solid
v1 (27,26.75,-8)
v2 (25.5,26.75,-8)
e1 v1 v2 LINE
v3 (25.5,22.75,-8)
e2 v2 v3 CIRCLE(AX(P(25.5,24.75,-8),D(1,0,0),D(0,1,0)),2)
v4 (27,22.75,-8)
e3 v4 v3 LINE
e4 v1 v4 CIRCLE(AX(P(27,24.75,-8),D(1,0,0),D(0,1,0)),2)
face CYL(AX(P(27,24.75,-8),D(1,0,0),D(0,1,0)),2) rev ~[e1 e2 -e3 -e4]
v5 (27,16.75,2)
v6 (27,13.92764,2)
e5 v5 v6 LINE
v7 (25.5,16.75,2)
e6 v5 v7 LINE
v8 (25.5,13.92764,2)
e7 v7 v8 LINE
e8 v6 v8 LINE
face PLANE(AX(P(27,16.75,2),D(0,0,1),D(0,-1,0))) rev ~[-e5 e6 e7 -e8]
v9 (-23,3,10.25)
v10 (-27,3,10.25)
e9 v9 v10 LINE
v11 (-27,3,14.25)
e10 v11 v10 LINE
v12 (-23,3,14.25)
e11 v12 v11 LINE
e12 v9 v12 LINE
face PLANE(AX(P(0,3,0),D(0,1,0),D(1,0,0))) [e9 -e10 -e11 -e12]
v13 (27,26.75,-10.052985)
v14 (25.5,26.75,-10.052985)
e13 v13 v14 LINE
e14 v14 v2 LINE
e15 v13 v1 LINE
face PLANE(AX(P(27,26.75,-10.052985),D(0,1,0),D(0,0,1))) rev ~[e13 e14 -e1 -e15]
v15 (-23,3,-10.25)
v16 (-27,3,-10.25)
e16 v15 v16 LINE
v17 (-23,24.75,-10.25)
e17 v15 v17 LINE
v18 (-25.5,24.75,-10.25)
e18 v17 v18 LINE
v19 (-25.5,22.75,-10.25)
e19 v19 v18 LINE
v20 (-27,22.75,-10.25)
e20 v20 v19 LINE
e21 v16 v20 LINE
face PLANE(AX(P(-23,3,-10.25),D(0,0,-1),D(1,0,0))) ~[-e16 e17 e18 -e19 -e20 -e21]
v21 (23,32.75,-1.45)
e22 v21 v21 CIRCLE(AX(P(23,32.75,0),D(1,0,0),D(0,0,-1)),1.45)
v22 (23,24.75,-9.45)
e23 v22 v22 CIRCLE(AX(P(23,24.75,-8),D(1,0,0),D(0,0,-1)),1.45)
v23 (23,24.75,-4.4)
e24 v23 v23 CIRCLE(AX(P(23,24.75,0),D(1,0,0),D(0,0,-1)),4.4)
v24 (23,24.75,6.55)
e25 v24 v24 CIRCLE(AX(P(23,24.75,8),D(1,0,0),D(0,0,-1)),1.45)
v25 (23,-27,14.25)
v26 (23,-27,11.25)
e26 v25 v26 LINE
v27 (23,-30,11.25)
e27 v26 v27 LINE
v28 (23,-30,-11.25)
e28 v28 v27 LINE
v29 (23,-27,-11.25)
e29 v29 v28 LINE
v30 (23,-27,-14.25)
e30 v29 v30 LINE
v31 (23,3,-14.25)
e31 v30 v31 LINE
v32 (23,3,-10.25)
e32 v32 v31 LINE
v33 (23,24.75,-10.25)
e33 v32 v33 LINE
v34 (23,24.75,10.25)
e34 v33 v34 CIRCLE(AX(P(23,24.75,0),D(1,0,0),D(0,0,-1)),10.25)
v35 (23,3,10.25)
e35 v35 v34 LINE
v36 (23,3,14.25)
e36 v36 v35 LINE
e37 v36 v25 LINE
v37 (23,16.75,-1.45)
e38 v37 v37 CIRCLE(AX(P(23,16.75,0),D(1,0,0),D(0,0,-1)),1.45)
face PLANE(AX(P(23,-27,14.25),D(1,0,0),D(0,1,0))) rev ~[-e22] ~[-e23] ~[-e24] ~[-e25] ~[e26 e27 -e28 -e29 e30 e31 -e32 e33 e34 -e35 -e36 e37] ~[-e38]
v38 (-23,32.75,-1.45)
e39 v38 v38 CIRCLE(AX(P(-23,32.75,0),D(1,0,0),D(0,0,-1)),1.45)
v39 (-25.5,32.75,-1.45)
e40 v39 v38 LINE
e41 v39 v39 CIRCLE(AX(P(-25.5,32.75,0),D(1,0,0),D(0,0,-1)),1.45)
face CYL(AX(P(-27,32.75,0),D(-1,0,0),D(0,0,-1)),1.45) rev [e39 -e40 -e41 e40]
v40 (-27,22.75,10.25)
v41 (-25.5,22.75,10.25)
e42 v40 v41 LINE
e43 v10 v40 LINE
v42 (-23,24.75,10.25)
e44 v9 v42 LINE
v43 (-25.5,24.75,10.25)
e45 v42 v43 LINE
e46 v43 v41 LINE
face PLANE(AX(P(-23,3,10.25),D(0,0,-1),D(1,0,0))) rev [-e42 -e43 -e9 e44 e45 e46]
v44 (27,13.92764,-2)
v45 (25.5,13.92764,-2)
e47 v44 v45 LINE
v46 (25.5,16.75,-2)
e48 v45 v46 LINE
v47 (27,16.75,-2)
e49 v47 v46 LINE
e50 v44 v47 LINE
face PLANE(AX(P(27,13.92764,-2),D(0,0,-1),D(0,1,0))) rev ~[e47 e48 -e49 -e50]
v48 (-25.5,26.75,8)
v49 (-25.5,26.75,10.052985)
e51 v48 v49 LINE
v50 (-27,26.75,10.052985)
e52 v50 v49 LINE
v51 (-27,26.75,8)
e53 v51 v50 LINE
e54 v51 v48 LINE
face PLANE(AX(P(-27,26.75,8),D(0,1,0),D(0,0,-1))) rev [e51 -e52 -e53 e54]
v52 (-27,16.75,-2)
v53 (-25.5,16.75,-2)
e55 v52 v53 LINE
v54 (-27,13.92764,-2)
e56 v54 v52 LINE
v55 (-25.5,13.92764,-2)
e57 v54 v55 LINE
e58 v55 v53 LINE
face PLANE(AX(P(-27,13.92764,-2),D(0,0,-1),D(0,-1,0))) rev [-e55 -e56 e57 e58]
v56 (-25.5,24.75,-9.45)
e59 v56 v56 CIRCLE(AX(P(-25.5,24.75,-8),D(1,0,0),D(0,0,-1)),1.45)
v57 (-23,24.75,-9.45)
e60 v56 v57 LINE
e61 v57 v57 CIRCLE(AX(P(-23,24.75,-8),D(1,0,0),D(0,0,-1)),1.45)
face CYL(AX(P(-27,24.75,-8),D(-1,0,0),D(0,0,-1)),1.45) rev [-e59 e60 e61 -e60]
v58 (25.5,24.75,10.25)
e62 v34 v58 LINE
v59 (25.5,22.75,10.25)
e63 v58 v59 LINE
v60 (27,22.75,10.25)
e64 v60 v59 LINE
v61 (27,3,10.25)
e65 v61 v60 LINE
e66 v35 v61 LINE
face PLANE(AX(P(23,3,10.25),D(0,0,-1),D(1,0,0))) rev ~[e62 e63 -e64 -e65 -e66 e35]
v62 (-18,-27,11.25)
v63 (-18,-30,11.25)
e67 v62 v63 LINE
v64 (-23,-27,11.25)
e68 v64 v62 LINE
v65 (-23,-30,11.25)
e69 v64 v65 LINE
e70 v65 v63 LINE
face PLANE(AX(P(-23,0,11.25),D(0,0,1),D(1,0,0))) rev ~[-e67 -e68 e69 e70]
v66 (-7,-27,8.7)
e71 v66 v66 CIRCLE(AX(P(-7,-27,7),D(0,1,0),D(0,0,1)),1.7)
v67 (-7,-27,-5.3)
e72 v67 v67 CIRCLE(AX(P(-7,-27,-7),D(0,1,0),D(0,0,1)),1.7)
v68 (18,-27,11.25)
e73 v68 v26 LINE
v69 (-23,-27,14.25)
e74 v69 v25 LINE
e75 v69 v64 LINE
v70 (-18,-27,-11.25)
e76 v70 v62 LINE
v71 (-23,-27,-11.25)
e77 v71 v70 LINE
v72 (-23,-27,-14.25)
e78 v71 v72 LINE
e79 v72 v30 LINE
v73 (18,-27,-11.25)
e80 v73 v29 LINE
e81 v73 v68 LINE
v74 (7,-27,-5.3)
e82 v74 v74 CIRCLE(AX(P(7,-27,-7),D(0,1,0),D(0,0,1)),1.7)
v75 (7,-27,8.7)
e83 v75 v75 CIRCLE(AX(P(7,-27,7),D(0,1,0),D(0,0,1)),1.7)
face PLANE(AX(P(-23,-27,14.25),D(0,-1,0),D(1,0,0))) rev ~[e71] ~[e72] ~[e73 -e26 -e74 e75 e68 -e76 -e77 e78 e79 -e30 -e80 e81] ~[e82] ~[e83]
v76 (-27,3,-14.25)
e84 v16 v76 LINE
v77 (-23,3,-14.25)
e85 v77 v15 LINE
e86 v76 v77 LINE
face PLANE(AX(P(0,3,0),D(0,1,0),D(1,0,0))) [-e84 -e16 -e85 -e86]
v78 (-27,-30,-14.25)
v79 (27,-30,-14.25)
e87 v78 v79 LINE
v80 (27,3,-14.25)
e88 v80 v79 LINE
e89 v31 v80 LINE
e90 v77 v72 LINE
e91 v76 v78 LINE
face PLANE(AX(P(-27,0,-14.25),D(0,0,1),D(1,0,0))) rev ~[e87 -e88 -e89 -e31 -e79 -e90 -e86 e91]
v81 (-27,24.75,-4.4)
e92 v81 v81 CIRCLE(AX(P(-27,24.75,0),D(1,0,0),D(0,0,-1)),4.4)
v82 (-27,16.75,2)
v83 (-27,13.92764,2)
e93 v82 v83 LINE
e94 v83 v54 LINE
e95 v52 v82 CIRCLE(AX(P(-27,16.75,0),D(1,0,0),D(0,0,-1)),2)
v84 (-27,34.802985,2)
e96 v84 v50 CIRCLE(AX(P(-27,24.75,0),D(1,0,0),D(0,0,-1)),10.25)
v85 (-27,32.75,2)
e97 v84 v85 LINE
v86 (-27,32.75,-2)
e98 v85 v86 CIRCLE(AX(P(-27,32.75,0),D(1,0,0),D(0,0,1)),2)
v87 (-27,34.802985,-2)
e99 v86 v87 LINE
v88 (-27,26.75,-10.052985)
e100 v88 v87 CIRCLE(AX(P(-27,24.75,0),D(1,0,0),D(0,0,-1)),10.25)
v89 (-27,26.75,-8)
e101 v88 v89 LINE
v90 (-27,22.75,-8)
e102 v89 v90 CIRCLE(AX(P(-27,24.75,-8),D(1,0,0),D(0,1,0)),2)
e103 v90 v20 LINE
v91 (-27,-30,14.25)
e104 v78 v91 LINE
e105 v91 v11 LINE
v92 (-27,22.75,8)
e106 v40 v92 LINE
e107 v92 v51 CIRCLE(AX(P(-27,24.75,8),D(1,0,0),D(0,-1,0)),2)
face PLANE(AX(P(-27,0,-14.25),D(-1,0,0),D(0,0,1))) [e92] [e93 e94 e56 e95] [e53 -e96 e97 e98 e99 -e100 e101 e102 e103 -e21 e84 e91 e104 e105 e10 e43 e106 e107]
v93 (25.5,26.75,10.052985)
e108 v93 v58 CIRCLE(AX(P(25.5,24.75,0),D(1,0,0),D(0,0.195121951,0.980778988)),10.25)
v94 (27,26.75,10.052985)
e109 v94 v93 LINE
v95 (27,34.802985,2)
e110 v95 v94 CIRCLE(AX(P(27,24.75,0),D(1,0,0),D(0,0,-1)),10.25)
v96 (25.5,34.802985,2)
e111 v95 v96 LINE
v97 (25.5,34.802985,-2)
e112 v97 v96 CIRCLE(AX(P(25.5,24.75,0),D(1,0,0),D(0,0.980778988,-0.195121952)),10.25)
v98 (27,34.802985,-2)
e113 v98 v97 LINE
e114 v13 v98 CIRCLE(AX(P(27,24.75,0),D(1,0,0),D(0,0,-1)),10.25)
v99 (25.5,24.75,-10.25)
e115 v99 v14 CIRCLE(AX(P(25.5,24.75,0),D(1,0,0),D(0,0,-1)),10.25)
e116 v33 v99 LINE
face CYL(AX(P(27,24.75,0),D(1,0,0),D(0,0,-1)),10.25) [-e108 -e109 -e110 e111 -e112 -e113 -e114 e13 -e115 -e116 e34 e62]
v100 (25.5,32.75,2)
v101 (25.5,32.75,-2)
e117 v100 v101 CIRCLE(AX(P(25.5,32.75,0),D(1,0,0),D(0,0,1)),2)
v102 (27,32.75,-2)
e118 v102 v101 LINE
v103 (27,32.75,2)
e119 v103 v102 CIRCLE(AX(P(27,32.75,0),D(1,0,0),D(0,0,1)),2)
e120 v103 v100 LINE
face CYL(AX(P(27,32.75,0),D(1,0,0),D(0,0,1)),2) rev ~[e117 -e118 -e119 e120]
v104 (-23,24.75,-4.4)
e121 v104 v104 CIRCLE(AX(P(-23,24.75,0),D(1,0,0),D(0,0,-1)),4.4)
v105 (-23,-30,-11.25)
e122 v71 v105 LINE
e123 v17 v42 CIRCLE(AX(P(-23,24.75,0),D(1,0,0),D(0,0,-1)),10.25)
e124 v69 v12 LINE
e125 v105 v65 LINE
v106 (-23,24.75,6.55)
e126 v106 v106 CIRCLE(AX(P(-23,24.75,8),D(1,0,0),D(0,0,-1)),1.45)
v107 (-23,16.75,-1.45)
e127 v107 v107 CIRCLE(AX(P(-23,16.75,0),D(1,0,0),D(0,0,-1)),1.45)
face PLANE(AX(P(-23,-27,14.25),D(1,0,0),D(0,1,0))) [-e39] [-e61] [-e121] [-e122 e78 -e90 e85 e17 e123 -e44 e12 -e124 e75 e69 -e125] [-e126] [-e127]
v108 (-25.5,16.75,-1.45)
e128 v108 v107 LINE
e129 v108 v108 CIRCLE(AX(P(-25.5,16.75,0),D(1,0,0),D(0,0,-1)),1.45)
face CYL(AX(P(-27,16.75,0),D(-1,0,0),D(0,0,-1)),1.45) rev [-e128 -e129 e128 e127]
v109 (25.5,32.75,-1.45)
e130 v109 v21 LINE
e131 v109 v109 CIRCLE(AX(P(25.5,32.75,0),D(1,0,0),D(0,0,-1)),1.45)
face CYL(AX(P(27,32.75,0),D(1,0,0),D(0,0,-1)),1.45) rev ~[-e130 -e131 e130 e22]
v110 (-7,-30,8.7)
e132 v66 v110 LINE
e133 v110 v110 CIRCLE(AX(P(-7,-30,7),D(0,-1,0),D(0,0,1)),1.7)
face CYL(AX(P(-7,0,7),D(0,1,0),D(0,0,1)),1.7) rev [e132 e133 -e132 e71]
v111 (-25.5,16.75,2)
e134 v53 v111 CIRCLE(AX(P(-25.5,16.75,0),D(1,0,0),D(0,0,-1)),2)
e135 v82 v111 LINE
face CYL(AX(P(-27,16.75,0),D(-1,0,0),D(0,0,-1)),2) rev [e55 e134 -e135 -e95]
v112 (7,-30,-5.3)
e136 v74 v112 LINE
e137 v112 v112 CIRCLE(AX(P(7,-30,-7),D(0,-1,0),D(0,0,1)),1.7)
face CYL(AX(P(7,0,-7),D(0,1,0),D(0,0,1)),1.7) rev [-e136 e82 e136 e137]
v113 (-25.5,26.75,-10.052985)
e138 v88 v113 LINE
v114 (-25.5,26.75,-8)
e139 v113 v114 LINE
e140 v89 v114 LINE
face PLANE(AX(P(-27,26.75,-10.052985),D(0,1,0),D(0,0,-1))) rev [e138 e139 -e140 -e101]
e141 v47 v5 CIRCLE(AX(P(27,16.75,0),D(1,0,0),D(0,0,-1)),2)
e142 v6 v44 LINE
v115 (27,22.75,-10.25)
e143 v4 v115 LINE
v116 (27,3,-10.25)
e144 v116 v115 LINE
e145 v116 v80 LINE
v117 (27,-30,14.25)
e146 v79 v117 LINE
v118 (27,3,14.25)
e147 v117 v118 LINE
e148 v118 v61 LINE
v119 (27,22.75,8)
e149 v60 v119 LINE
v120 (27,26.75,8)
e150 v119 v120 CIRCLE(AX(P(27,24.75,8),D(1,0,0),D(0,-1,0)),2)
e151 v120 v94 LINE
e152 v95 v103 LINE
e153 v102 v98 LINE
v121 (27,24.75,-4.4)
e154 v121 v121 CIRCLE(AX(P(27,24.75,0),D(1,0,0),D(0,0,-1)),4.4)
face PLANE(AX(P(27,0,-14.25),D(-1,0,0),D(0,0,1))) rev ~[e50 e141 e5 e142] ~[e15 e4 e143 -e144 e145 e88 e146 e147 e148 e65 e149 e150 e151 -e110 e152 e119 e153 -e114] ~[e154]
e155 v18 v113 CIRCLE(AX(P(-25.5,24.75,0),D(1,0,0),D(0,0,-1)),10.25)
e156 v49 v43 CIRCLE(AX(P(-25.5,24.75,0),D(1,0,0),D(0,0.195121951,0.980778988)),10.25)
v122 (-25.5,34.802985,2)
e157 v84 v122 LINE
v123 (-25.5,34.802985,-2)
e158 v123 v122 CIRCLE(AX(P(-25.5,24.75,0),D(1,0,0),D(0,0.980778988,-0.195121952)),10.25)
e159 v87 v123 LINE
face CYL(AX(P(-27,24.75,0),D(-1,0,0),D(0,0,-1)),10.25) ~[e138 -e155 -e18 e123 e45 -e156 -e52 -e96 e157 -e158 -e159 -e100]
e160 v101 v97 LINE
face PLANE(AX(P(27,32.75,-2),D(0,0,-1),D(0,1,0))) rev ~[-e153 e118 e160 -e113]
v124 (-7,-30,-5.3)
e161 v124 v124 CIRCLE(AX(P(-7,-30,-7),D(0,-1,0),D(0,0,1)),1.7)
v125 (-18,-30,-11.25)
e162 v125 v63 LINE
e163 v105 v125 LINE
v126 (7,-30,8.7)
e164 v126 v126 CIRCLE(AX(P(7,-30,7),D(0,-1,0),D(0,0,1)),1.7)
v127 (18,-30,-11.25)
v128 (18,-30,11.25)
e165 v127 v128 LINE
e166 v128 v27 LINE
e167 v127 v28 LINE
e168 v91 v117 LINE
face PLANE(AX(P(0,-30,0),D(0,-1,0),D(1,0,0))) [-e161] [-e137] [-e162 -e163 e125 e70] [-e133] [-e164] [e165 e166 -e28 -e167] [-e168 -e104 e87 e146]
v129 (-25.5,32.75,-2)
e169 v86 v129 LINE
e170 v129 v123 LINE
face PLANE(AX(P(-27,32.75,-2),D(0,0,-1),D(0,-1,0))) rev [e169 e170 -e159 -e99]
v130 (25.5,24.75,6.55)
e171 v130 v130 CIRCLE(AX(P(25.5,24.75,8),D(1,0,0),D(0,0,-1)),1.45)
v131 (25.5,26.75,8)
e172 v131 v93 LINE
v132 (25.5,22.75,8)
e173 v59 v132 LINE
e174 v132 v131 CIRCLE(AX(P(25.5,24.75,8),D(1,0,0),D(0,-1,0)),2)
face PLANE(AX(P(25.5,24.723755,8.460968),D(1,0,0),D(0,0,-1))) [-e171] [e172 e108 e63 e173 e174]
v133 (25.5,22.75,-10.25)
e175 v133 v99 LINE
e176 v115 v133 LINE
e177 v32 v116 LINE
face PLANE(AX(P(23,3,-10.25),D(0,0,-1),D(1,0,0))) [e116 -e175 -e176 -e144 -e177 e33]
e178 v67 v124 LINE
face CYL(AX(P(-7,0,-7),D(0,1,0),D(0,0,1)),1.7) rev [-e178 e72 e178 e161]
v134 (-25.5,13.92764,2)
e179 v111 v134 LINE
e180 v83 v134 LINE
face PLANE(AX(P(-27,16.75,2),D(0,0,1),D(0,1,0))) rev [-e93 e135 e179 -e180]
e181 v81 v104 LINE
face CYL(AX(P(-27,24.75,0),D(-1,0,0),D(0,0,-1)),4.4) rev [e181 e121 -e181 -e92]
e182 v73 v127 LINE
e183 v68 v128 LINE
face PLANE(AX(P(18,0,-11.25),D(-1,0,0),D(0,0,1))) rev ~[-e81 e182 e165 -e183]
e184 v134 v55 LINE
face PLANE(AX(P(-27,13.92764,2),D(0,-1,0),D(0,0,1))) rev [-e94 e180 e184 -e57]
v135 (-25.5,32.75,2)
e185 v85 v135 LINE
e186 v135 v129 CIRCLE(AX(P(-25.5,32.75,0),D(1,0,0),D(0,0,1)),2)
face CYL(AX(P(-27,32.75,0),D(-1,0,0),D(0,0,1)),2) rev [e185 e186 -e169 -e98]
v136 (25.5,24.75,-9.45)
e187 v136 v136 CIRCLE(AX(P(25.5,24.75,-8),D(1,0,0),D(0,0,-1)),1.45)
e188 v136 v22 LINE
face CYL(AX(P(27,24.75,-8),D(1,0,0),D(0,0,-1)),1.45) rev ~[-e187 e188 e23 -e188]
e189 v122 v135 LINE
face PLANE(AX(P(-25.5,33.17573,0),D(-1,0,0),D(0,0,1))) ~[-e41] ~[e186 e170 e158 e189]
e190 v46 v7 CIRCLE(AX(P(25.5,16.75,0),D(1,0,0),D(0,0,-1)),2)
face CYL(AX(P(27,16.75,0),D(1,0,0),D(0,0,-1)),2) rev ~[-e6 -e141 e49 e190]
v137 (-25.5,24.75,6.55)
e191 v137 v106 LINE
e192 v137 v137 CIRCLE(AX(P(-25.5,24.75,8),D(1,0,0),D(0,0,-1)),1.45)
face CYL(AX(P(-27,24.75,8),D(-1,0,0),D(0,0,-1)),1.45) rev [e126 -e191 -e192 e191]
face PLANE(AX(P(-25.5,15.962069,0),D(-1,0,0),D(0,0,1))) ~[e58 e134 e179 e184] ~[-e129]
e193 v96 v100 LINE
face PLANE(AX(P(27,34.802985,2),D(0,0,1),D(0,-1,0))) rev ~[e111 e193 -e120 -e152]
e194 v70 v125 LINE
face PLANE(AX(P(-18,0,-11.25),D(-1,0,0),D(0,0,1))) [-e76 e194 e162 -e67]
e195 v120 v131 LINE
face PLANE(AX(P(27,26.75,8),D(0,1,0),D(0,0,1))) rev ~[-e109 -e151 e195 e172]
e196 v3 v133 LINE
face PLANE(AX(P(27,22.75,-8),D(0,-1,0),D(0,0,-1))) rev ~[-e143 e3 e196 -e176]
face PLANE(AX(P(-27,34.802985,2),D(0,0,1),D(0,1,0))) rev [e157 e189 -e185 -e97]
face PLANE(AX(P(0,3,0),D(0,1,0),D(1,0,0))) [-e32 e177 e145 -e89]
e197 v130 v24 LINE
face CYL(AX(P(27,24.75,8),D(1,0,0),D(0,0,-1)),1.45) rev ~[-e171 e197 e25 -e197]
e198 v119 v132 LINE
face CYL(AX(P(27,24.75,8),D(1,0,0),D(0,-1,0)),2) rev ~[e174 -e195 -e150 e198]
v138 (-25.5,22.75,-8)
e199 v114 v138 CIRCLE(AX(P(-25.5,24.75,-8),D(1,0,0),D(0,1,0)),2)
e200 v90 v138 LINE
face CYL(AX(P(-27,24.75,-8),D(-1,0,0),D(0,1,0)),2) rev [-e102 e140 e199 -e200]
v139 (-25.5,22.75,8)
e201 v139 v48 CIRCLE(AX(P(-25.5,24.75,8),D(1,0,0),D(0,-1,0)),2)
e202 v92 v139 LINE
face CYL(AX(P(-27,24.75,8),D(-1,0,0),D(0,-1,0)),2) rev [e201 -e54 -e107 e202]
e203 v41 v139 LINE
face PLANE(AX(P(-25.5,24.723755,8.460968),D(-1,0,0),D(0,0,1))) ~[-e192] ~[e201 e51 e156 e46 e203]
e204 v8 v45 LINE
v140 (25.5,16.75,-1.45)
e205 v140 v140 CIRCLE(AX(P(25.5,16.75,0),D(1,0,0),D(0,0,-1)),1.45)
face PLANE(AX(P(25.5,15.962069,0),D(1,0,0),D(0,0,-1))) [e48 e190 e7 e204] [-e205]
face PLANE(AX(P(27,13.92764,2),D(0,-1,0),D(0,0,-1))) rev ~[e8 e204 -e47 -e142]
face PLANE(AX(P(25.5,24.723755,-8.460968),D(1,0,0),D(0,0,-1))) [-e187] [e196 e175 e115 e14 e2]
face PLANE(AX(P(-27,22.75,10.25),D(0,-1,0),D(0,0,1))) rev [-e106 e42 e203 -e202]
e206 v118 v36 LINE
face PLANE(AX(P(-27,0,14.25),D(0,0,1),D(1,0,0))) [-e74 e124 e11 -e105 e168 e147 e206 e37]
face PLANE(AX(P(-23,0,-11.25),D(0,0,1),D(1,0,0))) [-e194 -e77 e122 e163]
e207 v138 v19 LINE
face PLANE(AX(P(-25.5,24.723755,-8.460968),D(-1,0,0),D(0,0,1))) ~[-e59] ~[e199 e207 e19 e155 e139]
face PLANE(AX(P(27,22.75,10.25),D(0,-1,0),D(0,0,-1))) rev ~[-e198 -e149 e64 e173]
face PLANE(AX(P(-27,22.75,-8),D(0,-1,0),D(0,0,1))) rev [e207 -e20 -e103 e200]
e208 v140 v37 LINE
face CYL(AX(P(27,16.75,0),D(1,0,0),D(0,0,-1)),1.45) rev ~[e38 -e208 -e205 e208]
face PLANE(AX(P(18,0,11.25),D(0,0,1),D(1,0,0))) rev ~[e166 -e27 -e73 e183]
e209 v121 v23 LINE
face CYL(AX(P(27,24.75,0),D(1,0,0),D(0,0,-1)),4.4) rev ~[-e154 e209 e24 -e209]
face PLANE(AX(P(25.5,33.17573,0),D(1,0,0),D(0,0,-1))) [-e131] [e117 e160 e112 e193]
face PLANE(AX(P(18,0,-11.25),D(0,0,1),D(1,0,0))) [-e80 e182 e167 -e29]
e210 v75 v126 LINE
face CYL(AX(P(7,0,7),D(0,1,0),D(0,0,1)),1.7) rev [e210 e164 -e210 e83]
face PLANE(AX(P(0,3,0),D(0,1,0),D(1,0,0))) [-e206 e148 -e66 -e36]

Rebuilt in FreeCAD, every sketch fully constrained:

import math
import FreeCAD as App
import Part
import Sketcher
from FreeCAD import Vector
Q = App.Units.Quantity

doc = App.newDocument("Part")
body = doc.addObject("PartDesign::Body", "Body")

sketch1 = doc.addObject("Sketcher::SketchObject", "Sketch")
body.addObject(sketch1)
sketch1.AttachmentSupport = (doc.XZ_Plane, [""])
sketch1.MapMode = "FlatFace"
sketch1.addGeometry([
    Part.LineSegment(Vector(-27, -14.2, 0), Vector(-27, 14.2, 0)),
    Part.LineSegment(Vector(-27, 14.2, 0), Vector(27, 14.2, 0)),
    Part.LineSegment(Vector(27, 14.2, 0), Vector(27, -14.2, 0)),
    Part.LineSegment(Vector(27, -14.2, 0), Vector(-27, -14.2, 0)),
    Part.Circle(Vector(-9, 8.2, 0), Vector(0, 0, 1), 1.7),
    Part.Circle(Vector(9, 8.2, 0), Vector(0, 0, 1), 1.7),
    Part.LineSegment(Vector(-18, 11.2, 0), Vector(-23, 11.2, 0)),
    Part.LineSegment(Vector(-23, 11.2, 0), Vector(-23, -11.2, 0)),
    Part.LineSegment(Vector(-23, -11.2, 0), Vector(-18, -11.2, 0)),
    Part.LineSegment(Vector(-18, -11.2, 0), Vector(-18, 11.2, 0)),
    Part.Circle(Vector(-9, -8.2, 0), Vector(0, 0, 1), 1.7),
    Part.Circle(Vector(0, 0, 0), Vector(0, 0, 1), 7.5),
    Part.LineSegment(Vector(23, 11.2, 0), Vector(18, 11.2, 0)),
    Part.LineSegment(Vector(18, 11.2, 0), Vector(18, -11.2, 0)),
    Part.LineSegment(Vector(18, -11.2, 0), Vector(23, -11.2, 0)),
    Part.LineSegment(Vector(23, -11.2, 0), Vector(23, 11.2, 0)),
    Part.Circle(Vector(9, -8.2, 0), Vector(0, 0, 1), 1.7),
], False)
sketch1.addConstraint([
    Sketcher.Constraint("Coincident", 0, 2, 1, 1),
    Sketcher.Constraint("Coincident", 1, 2, 2, 1),
    Sketcher.Constraint("Coincident", 2, 2, 3, 1),
    Sketcher.Constraint("Coincident", 3, 2, 0, 1),
    Sketcher.Constraint("Coincident", 6, 2, 7, 1),
    Sketcher.Constraint("Coincident", 7, 2, 8, 1),
    Sketcher.Constraint("Coincident", 8, 2, 9, 1),
    Sketcher.Constraint("Coincident", 9, 2, 6, 1),
    Sketcher.Constraint("Coincident", 12, 2, 13, 1),
    Sketcher.Constraint("Coincident", 13, 2, 14, 1),
    Sketcher.Constraint("Coincident", 14, 2, 15, 1),
    Sketcher.Constraint("Coincident", 15, 2, 12, 1),
    Sketcher.Constraint("Vertical", 0),
    Sketcher.Constraint("Horizontal", 1),
    Sketcher.Constraint("Vertical", 2),
    Sketcher.Constraint("Horizontal", 3),
    Sketcher.Constraint("Horizontal", 6),
    Sketcher.Constraint("Vertical", 7),
    Sketcher.Constraint("Horizontal", 8),
    Sketcher.Constraint("Vertical", 9),
    Sketcher.Constraint("Horizontal", 12),
    Sketcher.Constraint("Vertical", 13),
    Sketcher.Constraint("Horizontal", 14),
    Sketcher.Constraint("Vertical", 15),
    Sketcher.Constraint("Coincident", 11, 3, -1, 1),
    Sketcher.Constraint("Equal", 4, 5),
    Sketcher.Constraint("Equal", 5, 10),
    Sketcher.Constraint("Equal", 10, 16),
    Sketcher.Constraint("Symmetric", 5, 3, 10, 3, -1, 1),
    Sketcher.Constraint("Symmetric", 4, 3, 16, 3, -1, 1),
    Sketcher.Constraint("Symmetric", 0, 2, 2, 2, -1, 1),
    Sketcher.Constraint("Symmetric", 8, 2, 12, 2, -1, 1),
    Sketcher.Constraint("Symmetric", 6, 2, 14, 2, -1, 1),
    Sketcher.Constraint("Symmetric", 4, 3, 5, 3, -2),
    Sketcher.Constraint("Horizontal", 9, 2, 12, 2),
    Sketcher.Constraint("Diameter", 11, Q("15 mm")),
    Sketcher.Constraint("Diameter", 4, Q("3.4 mm")),
    Sketcher.Constraint("DistanceX", 1, 1, 1, 2, Q("54 mm")),
    Sketcher.Constraint("DistanceX", 6, 2, 6, 1, Q("5 mm")),
    Sketcher.Constraint("DistanceY", 0, 1, 0, 2, Q("28.5 mm")),
    Sketcher.Constraint("DistanceY", 7, 2, 7, 1, Q("22.5 mm")),
    Sketcher.Constraint("DistanceX", 4, 3, -1, 1, Q("9 mm")),
    Sketcher.Constraint("DistanceX", 6, 2, -1, 1, Q("23 mm")),
    Sketcher.Constraint("DistanceY", 4, 3, 0, 2, Q("6 mm")),
])
pad1 = doc.addObject("PartDesign::Pad", "Pad")
body.addObject(pad1)
pad1.Profile = sketch1
pad1.Length = 3
pad1.Reversed = True

sketch2 = doc.addObject("Sketcher::SketchObject", "Sketch001")
body.addObject(sketch2)
sketch2.AttachmentSupport = (doc.XZ_Plane, [""])
sketch2.MapMode = "FlatFace"
sketch2.AttachmentOffset = App.Placement(Vector(0, 0, -3), App.Rotation())
sketch2.addGeometry([
    Part.LineSegment(Vector(23, -10.2, 0), Vector(23, 10.2, 0)),
    Part.LineSegment(Vector(23, 10.2, 0), Vector(27, 10.2, 0)),
    Part.LineSegment(Vector(27, 10.2, 0), Vector(27, -10.2, 0)),
    Part.LineSegment(Vector(27, -10.2, 0), Vector(23, -10.2, 0)),
], False)
sketch2.addConstraint([
    Sketcher.Constraint("Coincident", 0, 2, 1, 1),
    Sketcher.Constraint("Coincident", 1, 2, 2, 1),
    Sketcher.Constraint("Coincident", 2, 2, 3, 1),
    Sketcher.Constraint("Coincident", 3, 2, 0, 1),
    Sketcher.Constraint("Vertical", 0),
    Sketcher.Constraint("Horizontal", 1),
    Sketcher.Constraint("Vertical", 2),
    Sketcher.Constraint("Horizontal", 3),
    Sketcher.Constraint("DistanceX", 1, 1, 1, 2, Q("4 mm")),
    Sketcher.Constraint("DistanceY", 0, 1, 0, 2, Q("20.5 mm")),
    Sketcher.Constraint("DistanceX", -1, 1, 0, 2, Q("23 mm")),
    Sketcher.Constraint("DistanceY", -1, 1, 0, 2, Q("10.25 mm")),
])
pad2 = doc.addObject("PartDesign::Pad", "Pad001")
body.addObject(pad2)
pad2.Profile = sketch2
pad2.Length = 21.75
pad2.Reversed = True

sketch3 = doc.addObject("Sketcher::SketchObject", "Sketch002")
body.addObject(sketch3)
sketch3.AttachmentSupport = (doc.YZ_Plane, [""])
sketch3.MapMode = "FlatFace"
sketch3.AttachmentOffset = App.Placement(Vector(0, 0, 27), App.Rotation())
sketch3.addGeometry(Part.Circle(Vector(25, 0, 0), Vector(0, 0, 1), 10), False)
sketch3.addConstraint([
    Sketcher.Constraint("PointOnObject", 0, 3, -1),
    Sketcher.Constraint("Diameter", 0, Q("20.5 mm")),
    Sketcher.Constraint("DistanceX", -1, 1, 0, 3, Q("24.75 mm")),
])
pad3 = doc.addObject("PartDesign::Pad", "Pad002")
body.addObject(pad3)
pad3.Profile = sketch3
pad3.Length = 4
pad3.Reversed = True
doc.recompute()

mirrored = doc.addObject("PartDesign::Mirrored", "Mirrored")
body.addObject(mirrored)
mirrored.Originals = [pad2, pad3]
mirrored.MirrorPlane = (doc.YZ_Plane, [""])
body.Tip = mirrored

sketch4 = doc.addObject("Sketcher::SketchObject", "Sketch003")
body.addObject(sketch4)
sketch4.AttachmentSupport = (doc.YZ_Plane, [""])
sketch4.MapMode = "FlatFace"
sketch4.AttachmentOffset = App.Placement(Vector(0, 0, 27), App.Rotation())
sketch4.addGeometry([
    Part.Circle(Vector(24.8, 0, 0), Vector(0, 0, 1), 4.4),
    Part.Circle(Vector(32.8, 0, 0), Vector(0, 0, 1), 1.4),
    Part.Circle(Vector(24.8, -8, 0), Vector(0, 0, 1), 1.4),
    Part.Circle(Vector(16.8, 0, 0), Vector(0, 0, 1), 1.4),
    Part.Circle(Vector(24.8, 8, 0), Vector(0, 0, 1), 1.4),
], False)
sketch4.addConstraint([
    Sketcher.Constraint("Equal", 1, 2),
    Sketcher.Constraint("Equal", 2, 3),
    Sketcher.Constraint("Equal", 3, 4),
    Sketcher.Constraint("Symmetric", 2, 3, 4, 3, -1),
    Sketcher.Constraint("PointOnObject", 0, 3, -1),
    Sketcher.Constraint("PointOnObject", 1, 3, -1),
    Sketcher.Constraint("PointOnObject", 3, 3, -1),
    Sketcher.Constraint("Vertical", 0, 3, 2, 3),
    Sketcher.Constraint("Diameter", 0, Q("8.8 mm")),
    Sketcher.Constraint("Diameter", 1, Q("2.9 mm")),
    Sketcher.Constraint("DistanceY", 2, 3, -1, 1, Q("8 mm")),
    Sketcher.Constraint("DistanceX", 0, 3, 1, 3, Q("8 mm")),
    Sketcher.Constraint("DistanceX", 3, 3, 0, 3, Q("8 mm")),
    Sketcher.Constraint("DistanceX", -1, 1, 0, 3, Q("24.75 mm")),
])
pocket1 = doc.addObject("PartDesign::Pocket", "Pocket")
body.addObject(pocket1)
pocket1.Profile = sketch4
pocket1.Length = 4
doc.recompute()

mirrored2 = doc.addObject("PartDesign::Mirrored", "Mirrored001")
body.addObject(mirrored2)
mirrored2.Originals = [pocket1]
mirrored2.MirrorPlane = (doc.YZ_Plane, [""])
body.Tip = mirrored2

sketch5 = doc.addObject("Sketcher::SketchObject", "Sketch004")
body.addObject(sketch5)
sketch5.AttachmentSupport = (doc.YZ_Plane, [""])
sketch5.MapMode = "FlatFace"
sketch5.AttachmentOffset = App.Placement(Vector(0, 0, 27), App.Rotation())
sketch5.addGeometry([
    Part.ArcOfCircle(Part.Circle(Vector(24.7, 0, 0), Vector(0, 0, 1), 10.3), math.radians(-90), math.radians(-78.75)),
    Part.LineSegment(Vector(26.8, -10.1, 0), Vector(26.8, -8, 0)),
    Part.ArcOfCircle(Part.Circle(Vector(24.8, -8, 0), Vector(0, 0, 1), 2), math.radians(0), math.radians(180)),
    Part.LineSegment(Vector(22.8, -8, 0), Vector(22.8, -10.2, 0)),
    Part.LineSegment(Vector(22.8, -10.2, 0), Vector(24.8, -10.2, 0)),
    Part.Circle(Vector(24.8, -8, 0), Vector(0, 0, 1), 1.4),
    Part.LineSegment(Vector(32.8, -2, 0), Vector(34.8, -2, 0)),
    Part.ArcOfCircle(Part.Circle(Vector(24.8, 0, 0), Vector(0, 0, 1), 10.2), math.radians(-11), math.radians(11)),
    Part.LineSegment(Vector(34.8, 2, 0), Vector(32.8, 2, 0)),
    Part.ArcOfCircle(Part.Circle(Vector(32.8, 0, 0), Vector(0, 0, 1), 2), math.radians(90), math.radians(270)),
    Part.Circle(Vector(32.8, 0, 0), Vector(0, 0, 1), 1.4),
    Part.LineSegment(Vector(26.8, 8, 0), Vector(26.8, 10.1, 0)),
    Part.ArcOfCircle(Part.Circle(Vector(24.7, 0, 0), Vector(0, 0, 1), 10.3), math.radians(78.75), math.radians(90)),
    Part.LineSegment(Vector(24.8, 10.2, 0), Vector(22.8, 10.2, 0)),
    Part.LineSegment(Vector(22.8, 10.2, 0), Vector(22.8, 8, 0)),
    Part.ArcOfCircle(Part.Circle(Vector(24.8, 8, 0), Vector(0, 0, 1), 2), math.radians(180), math.radians(360)),
    Part.Circle(Vector(24.8, 8, 0), Vector(0, 0, 1), 1.4),
    Part.LineSegment(Vector(16.8, 2, 0), Vector(13.9, 2, 0)),
    Part.LineSegment(Vector(13.9, 2, 0), Vector(13.9, -2, 0)),
    Part.LineSegment(Vector(13.9, -2, 0), Vector(16.8, -2, 0)),
    Part.ArcOfCircle(Part.Circle(Vector(16.8, 0, 0), Vector(0, 0, 1), 2), math.radians(-90), math.radians(90)),
    Part.Circle(Vector(16.8, 0, 0), Vector(0, 0, 1), 1.4),
], False)
sketch5.addConstraint([
    Sketcher.Constraint("Coincident", 0, 2, 1, 1),
    Sketcher.Constraint("Tangent", 1, 2, 2, 1),
    Sketcher.Constraint("Tangent", 2, 2, 3, 1),
    Sketcher.Constraint("Coincident", 3, 2, 4, 1),
    Sketcher.Constraint("Tangent", 4, 2, 0, 1),
    Sketcher.Constraint("Coincident", 6, 2, 7, 1),
    Sketcher.Constraint("Coincident", 7, 2, 8, 1),
    Sketcher.Constraint("Tangent", 8, 2, 9, 1),
    Sketcher.Constraint("Tangent", 9, 2, 6, 1),
    Sketcher.Constraint("Coincident", 11, 2, 12, 1),
    Sketcher.Constraint("Tangent", 12, 2, 13, 1),
    Sketcher.Constraint("Coincident", 13, 2, 14, 1),
    Sketcher.Constraint("Tangent", 14, 2, 15, 1),
    Sketcher.Constraint("Tangent", 15, 2, 11, 1),
    Sketcher.Constraint("Coincident", 17, 2, 18, 1),
    Sketcher.Constraint("Coincident", 18, 2, 19, 1),
    Sketcher.Constraint("Tangent", 19, 2, 20, 1),
    Sketcher.Constraint("Tangent", 20, 2, 17, 1),
    Sketcher.Constraint("Vertical", 1),
    Sketcher.Constraint("Vertical", 3),
    Sketcher.Constraint("Horizontal", 4),
    Sketcher.Constraint("Horizontal", 6),
    Sketcher.Constraint("Horizontal", 8),
    Sketcher.Constraint("Vertical", 11),
    Sketcher.Constraint("Horizontal", 13),
    Sketcher.Constraint("Vertical", 14),
    Sketcher.Constraint("Horizontal", 17),
    Sketcher.Constraint("Vertical", 18),
    Sketcher.Constraint("Horizontal", 19),
    Sketcher.Constraint("Coincident", 5, 3, 2, 3),
    Sketcher.Constraint("Coincident", 7, 3, 0, 3),
    Sketcher.Constraint("Coincident", 10, 3, 9, 3),
    Sketcher.Constraint("Coincident", 12, 3, 0, 3),
    Sketcher.Constraint("Coincident", 16, 3, 15, 3),
    Sketcher.Constraint("Coincident", 21, 3, 20, 3),
    Sketcher.Constraint("Equal", 0, 7),
    Sketcher.Constraint("Equal", 2, 9),
    Sketcher.Constraint("Equal", 5, 10),
    Sketcher.Constraint("Equal", 7, 12),
    Sketcher.Constraint("Equal", 9, 15),
    Sketcher.Constraint("Equal", 10, 16),
    Sketcher.Constraint("Equal", 15, 20),
    Sketcher.Constraint("Equal", 16, 21),
    Sketcher.Constraint("Symmetric", 2, 3, 15, 3, -1),
    Sketcher.Constraint("Symmetric", 6, 2, 7, 2, -1),
    Sketcher.Constraint("PointOnObject", 20, 3, -1),
    Sketcher.Constraint("Vertical", 0, 3, 2, 3),
    Sketcher.Constraint("Equal", 8, 1),
    Sketcher.Constraint("Radius", 2, Q("2 mm")),
    Sketcher.Constraint("Diameter", 5, Q("2.9 mm")),
    Sketcher.Constraint("Radius", 0, Q("10.25 mm")),
    Sketcher.Constraint("DistanceY", 2, 3, -1, 1, Q("8 mm")),
    Sketcher.Constraint("DistanceX", 20, 3, 0, 3, Q("8 mm")),
    Sketcher.Constraint("DistanceX", -1, 1, 0, 3, Q("24.75 mm")),
    Sketcher.Constraint("DistanceX", 17, 2, 17, 1, Q("2.82236 mm")),
])
pocket2 = doc.addObject("PartDesign::Pocket", "Pocket001")
body.addObject(pocket2)
pocket2.Profile = sketch5
pocket2.Length = 1.5
doc.recompute()

mirrored3 = doc.addObject("PartDesign::Mirrored", "Mirrored002")
body.addObject(mirrored3)
mirrored3.Originals = [pocket2]
mirrored3.MirrorPlane = (doc.YZ_Plane, [""])
body.Tip = mirrored3

sketch6 = doc.addObject("Sketcher::SketchObject", "Sketch005")
body.addObject(sketch6)
sketch6.AttachmentSupport = (doc.XZ_Plane, [""])
sketch6.MapMode = "FlatFace"
sketch6.AttachmentOffset = App.Placement(Vector(0, 0, -3), App.Rotation())
sketch6.addGeometry([
    Part.LineSegment(Vector(-14, -14, 0), Vector(-14, 14, 0)),
    Part.LineSegment(Vector(-14, 14, 0), Vector(14, 14, 0)),
    Part.LineSegment(Vector(14, 14, 0), Vector(14, -14, 0)),
    Part.LineSegment(Vector(14, -14, 0), Vector(-14, -14, 0)),
], False)
sketch6.addConstraint([
    Sketcher.Constraint("Coincident", 0, 2, 1, 1),
    Sketcher.Constraint("Coincident", 1, 2, 2, 1),
    Sketcher.Constraint("Coincident", 2, 2, 3, 1),
    Sketcher.Constraint("Coincident", 3, 2, 0, 1),
    Sketcher.Constraint("Vertical", 0),
    Sketcher.Constraint("Horizontal", 1),
    Sketcher.Constraint("Vertical", 2),
    Sketcher.Constraint("Horizontal", 3),
    Sketcher.Constraint("Symmetric", 0, 2, 2, 2, -1, 1),
    Sketcher.Constraint("DistanceY", 0, 1, 0, 2, Q("28.5 mm")),
    Sketcher.Constraint("DistanceX", 1, 1, 1, 2, Q("28.781481 mm")),
])
pad4 = doc.addObject("PartDesign::Pad", "Pad003")
body.addObject(pad4)
pad4.Profile = sketch6
pad4.Length = 3

sketch7 = doc.addObject("Sketcher::SketchObject", "Sketch006")
body.addObject(sketch7)
sketch7.AttachmentSupport = (doc.XZ_Plane, [""])
sketch7.MapMode = "FlatFace"
sketch7.AttachmentOffset = App.Placement(Vector(0, 0, -3), App.Rotation())
sketch7.addGeometry([
    Part.ArcOfCircle(Part.Circle(Vector(-7, 7, 0), Vector(0, 0, 1), 1.7), math.radians(-90), math.radians(0)),
    Part.ArcOfCircle(Part.Circle(Vector(-7, 7, 0), Vector(0, 0, 1), 1.7), math.radians(0), math.radians(270)),
    Part.ArcOfCircle(Part.Circle(Vector(7, 7, 0), Vector(0, 0, 1), 1.7), math.radians(-90), math.radians(0)),
    Part.ArcOfCircle(Part.Circle(Vector(7, 7, 0), Vector(0, 0, 1), 1.7), math.radians(180), math.radians(270)),
    Part.ArcOfCircle(Part.Circle(Vector(7, 7, 0), Vector(0, 0, 1), 1.7), math.radians(0), math.radians(180)),
    Part.ArcOfCircle(Part.Circle(Vector(7, -7, 0), Vector(0, 0, 1), 1.7), math.radians(180), math.radians(360)),
    Part.ArcOfCircle(Part.Circle(Vector(7, -7, 0), Vector(0, 0, 1), 1.7), math.radians(90), math.radians(180)),
    Part.ArcOfCircle(Part.Circle(Vector(7, -7, 0), Vector(0, 0, 1), 1.7), math.radians(0), math.radians(90)),
    Part.Circle(Vector(-7, -7, 0), Vector(0, 0, 1), 1.7),
], False)
sketch7.addConstraint([
    Sketcher.Constraint("Tangent", 0, 1, 1, 2),
    Sketcher.Constraint("Coincident", 1, 1, 0, 2),
    Sketcher.Constraint("Tangent", 2, 1, 3, 2),
    Sketcher.Constraint("Tangent", 3, 1, 4, 2),
    Sketcher.Constraint("Tangent", 4, 1, 2, 2),
    Sketcher.Constraint("Tangent", 5, 1, 6, 2),
    Sketcher.Constraint("Tangent", 6, 1, 7, 2),
    Sketcher.Constraint("Tangent", 7, 1, 5, 2),
    Sketcher.Constraint("Equal", 1, 2),
    Sketcher.Constraint("Equal", 4, 5),
    Sketcher.Constraint("Equal", 7, 8),
    Sketcher.Constraint("Symmetric", 0, 3, 5, 3, -1, 1),
    Sketcher.Constraint("Symmetric", 2, 3, 8, 3, -1, 1),
    Sketcher.Constraint("Symmetric", 0, 3, 2, 3, -2),
    Sketcher.Constraint("Horizontal", 4, 3, 1, 1),
    Sketcher.Constraint("Horizontal", 1, 1, 3, 1),
    Sketcher.Constraint("Horizontal", 3, 1, 4, 1),
    Sketcher.Constraint("Horizontal", 8, 3, 5, 1),
    Sketcher.Constraint("Horizontal", 5, 1, 7, 1),
    Sketcher.Constraint("Vertical", 8, 3, 0, 1),
    Sketcher.Constraint("Vertical", 7, 3, 2, 1),
    Sketcher.Constraint("Vertical", 2, 1, 6, 1),
    Sketcher.Constraint("Diameter", 8, Q("3.4 mm")),
    Sketcher.Constraint("DistanceX", 0, 3, -1, 1, Q("7 mm")),
    Sketcher.Constraint("DistanceY", -1, 1, 0, 3, Q("7 mm")),
])
pocket3 = doc.addObject("PartDesign::Pocket", "Pocket002")
body.addObject(pocket3)
pocket3.Profile = sketch7
pocket3.Length = 3
pocket3.Reversed = True

sketch8 = doc.addObject("Sketcher::SketchObject", "Sketch007")
body.addObject(sketch8)
sketch8.AttachmentSupport = (doc.XZ_Plane, [""])
sketch8.MapMode = "FlatFace"
sketch8.addGeometry([
    Part.LineSegment(Vector(-27, 14.2, 0), Vector(-27, -14.2, 0)),
    Part.LineSegment(Vector(-27, -14.2, 0), Vector(27, -14.2, 0)),
    Part.LineSegment(Vector(27, -14.2, 0), Vector(27, 14.2, 0)),
    Part.LineSegment(Vector(27, 14.2, 0), Vector(-27, 14.2, 0)),
    Part.Circle(Vector(-7, -7, 0), Vector(0, 0, 1), 1.7),
    Part.Circle(Vector(7, -7, 0), Vector(0, 0, 1), 1.7),
    Part.LineSegment(Vector(-18, -11.2, 0), Vector(-23, -11.2, 0)),
    Part.LineSegment(Vector(-23, -11.2, 0), Vector(-23, 11.2, 0)),
    Part.LineSegment(Vector(-23, 11.2, 0), Vector(-18, 11.2, 0)),
    Part.LineSegment(Vector(-18, 11.2, 0), Vector(-18, -11.2, 0)),
    Part.Circle(Vector(-7, 7, 0), Vector(0, 0, 1), 1.7),
    Part.LineSegment(Vector(23, -11.2, 0), Vector(18, -11.2, 0)),
    Part.LineSegment(Vector(18, -11.2, 0), Vector(18, 11.2, 0)),
    Part.LineSegment(Vector(18, 11.2, 0), Vector(23, 11.2, 0)),
    Part.LineSegment(Vector(23, 11.2, 0), Vector(23, -11.2, 0)),
    Part.Circle(Vector(7, 7, 0), Vector(0, 0, 1), 1.7),
], False)
sketch8.addConstraint([
    Sketcher.Constraint("Coincident", 0, 2, 1, 1),
    Sketcher.Constraint("Coincident", 1, 2, 2, 1),
    Sketcher.Constraint("Coincident", 2, 2, 3, 1),
    Sketcher.Constraint("Coincident", 3, 2, 0, 1),
    Sketcher.Constraint("Coincident", 6, 2, 7, 1),
    Sketcher.Constraint("Coincident", 7, 2, 8, 1),
    Sketcher.Constraint("Coincident", 8, 2, 9, 1),
    Sketcher.Constraint("Coincident", 9, 2, 6, 1),
    Sketcher.Constraint("Coincident", 11, 2, 12, 1),
    Sketcher.Constraint("Coincident", 12, 2, 13, 1),
    Sketcher.Constraint("Coincident", 13, 2, 14, 1),
    Sketcher.Constraint("Coincident", 14, 2, 11, 1),
    Sketcher.Constraint("Vertical", 0),
    Sketcher.Constraint("Horizontal", 1),
    Sketcher.Constraint("Vertical", 2),
    Sketcher.Constraint("Horizontal", 3),
    Sketcher.Constraint("Horizontal", 6),
    Sketcher.Constraint("Vertical", 7),
    Sketcher.Constraint("Horizontal", 8),
    Sketcher.Constraint("Vertical", 9),
    Sketcher.Constraint("Horizontal", 11),
    Sketcher.Constraint("Vertical", 12),
    Sketcher.Constraint("Horizontal", 13),
    Sketcher.Constraint("Vertical", 14),
    Sketcher.Constraint("Equal", 4, 5),
    Sketcher.Constraint("Equal", 5, 10),
    Sketcher.Constraint("Equal", 10, 15),
    Sketcher.Constraint("Symmetric", 5, 3, 10, 3, -1, 1),
    Sketcher.Constraint("Symmetric", 4, 3, 15, 3, -1, 1),
    Sketcher.Constraint("Symmetric", 0, 2, 2, 2, -1, 1),
    Sketcher.Constraint("Symmetric", 8, 2, 11, 2, -1, 1),
    Sketcher.Constraint("Symmetric", 6, 2, 13, 2, -1, 1),
    Sketcher.Constraint("Symmetric", 4, 3, 5, 3, -2),
    Sketcher.Constraint("Horizontal", 9, 2, 11, 2),
    Sketcher.Constraint("Diameter", 4, Q("3.4 mm")),
    Sketcher.Constraint("DistanceX", 1, 1, 1, 2, Q("54 mm")),
    Sketcher.Constraint("DistanceX", 6, 2, 6, 1, Q("5 mm")),
    Sketcher.Constraint("DistanceY", 0, 2, 0, 1, Q("28.5 mm")),
    Sketcher.Constraint("DistanceY", 7, 1, 7, 2, Q("22.5 mm")),
    Sketcher.Constraint("DistanceX", 4, 3, -1, 1, Q("7 mm")),
    Sketcher.Constraint("DistanceY", 4, 3, -1, 1, Q("7 mm")),
    Sketcher.Constraint("DistanceX", 6, 2, -1, 1, Q("23 mm")),
])
pad5 = doc.addObject("PartDesign::Pad", "Pad004")
body.addObject(pad5)
pad5.Profile = sketch8
pad5.Length = 30

sketch9 = doc.addObject("Sketcher::SketchObject", "Sketch008")
body.addObject(sketch9)
sketch9.AttachmentSupport = (doc.XY_Plane, [""])
sketch9.MapMode = "FlatFace"
sketch9.AttachmentOffset = App.Placement(Vector(0, 0, 14.25), App.Rotation())
sketch9.addGeometry([
    Part.LineSegment(Vector(-23, 3, 0), Vector(-23, -27, 0)),
    Part.LineSegment(Vector(-23, -27, 0), Vector(23, -27, 0)),
    Part.LineSegment(Vector(23, -27, 0), Vector(23, 3, 0)),
    Part.LineSegment(Vector(23, 3, 0), Vector(-23, 3, 0)),
], False)
sketch9.addConstraint([
    Sketcher.Constraint("Coincident", 0, 2, 1, 1),
    Sketcher.Constraint("Coincident", 1, 2, 2, 1),
    Sketcher.Constraint("Coincident", 2, 2, 3, 1),
    Sketcher.Constraint("Coincident", 3, 2, 0, 1),
    Sketcher.Constraint("Vertical", 0),
    Sketcher.Constraint("Horizontal", 1),
    Sketcher.Constraint("Vertical", 2),
    Sketcher.Constraint("Horizontal", 3),
    Sketcher.Constraint("DistanceX", 1, 1, 1, 2, Q("46 mm")),
    Sketcher.Constraint("DistanceY", 0, 2, 0, 1, Q("30 mm")),
    Sketcher.Constraint("DistanceX", 0, 2, -1, 1, Q("23 mm")),
    Sketcher.Constraint("DistanceY", 0, 2, -1, 1, Q("27 mm")),
])
pocket4 = doc.addObject("PartDesign::Pocket", "Pocket003")
body.addObject(pocket4)
pocket4.Profile = sketch9
pocket4.Length = 30

doc.recompute()
